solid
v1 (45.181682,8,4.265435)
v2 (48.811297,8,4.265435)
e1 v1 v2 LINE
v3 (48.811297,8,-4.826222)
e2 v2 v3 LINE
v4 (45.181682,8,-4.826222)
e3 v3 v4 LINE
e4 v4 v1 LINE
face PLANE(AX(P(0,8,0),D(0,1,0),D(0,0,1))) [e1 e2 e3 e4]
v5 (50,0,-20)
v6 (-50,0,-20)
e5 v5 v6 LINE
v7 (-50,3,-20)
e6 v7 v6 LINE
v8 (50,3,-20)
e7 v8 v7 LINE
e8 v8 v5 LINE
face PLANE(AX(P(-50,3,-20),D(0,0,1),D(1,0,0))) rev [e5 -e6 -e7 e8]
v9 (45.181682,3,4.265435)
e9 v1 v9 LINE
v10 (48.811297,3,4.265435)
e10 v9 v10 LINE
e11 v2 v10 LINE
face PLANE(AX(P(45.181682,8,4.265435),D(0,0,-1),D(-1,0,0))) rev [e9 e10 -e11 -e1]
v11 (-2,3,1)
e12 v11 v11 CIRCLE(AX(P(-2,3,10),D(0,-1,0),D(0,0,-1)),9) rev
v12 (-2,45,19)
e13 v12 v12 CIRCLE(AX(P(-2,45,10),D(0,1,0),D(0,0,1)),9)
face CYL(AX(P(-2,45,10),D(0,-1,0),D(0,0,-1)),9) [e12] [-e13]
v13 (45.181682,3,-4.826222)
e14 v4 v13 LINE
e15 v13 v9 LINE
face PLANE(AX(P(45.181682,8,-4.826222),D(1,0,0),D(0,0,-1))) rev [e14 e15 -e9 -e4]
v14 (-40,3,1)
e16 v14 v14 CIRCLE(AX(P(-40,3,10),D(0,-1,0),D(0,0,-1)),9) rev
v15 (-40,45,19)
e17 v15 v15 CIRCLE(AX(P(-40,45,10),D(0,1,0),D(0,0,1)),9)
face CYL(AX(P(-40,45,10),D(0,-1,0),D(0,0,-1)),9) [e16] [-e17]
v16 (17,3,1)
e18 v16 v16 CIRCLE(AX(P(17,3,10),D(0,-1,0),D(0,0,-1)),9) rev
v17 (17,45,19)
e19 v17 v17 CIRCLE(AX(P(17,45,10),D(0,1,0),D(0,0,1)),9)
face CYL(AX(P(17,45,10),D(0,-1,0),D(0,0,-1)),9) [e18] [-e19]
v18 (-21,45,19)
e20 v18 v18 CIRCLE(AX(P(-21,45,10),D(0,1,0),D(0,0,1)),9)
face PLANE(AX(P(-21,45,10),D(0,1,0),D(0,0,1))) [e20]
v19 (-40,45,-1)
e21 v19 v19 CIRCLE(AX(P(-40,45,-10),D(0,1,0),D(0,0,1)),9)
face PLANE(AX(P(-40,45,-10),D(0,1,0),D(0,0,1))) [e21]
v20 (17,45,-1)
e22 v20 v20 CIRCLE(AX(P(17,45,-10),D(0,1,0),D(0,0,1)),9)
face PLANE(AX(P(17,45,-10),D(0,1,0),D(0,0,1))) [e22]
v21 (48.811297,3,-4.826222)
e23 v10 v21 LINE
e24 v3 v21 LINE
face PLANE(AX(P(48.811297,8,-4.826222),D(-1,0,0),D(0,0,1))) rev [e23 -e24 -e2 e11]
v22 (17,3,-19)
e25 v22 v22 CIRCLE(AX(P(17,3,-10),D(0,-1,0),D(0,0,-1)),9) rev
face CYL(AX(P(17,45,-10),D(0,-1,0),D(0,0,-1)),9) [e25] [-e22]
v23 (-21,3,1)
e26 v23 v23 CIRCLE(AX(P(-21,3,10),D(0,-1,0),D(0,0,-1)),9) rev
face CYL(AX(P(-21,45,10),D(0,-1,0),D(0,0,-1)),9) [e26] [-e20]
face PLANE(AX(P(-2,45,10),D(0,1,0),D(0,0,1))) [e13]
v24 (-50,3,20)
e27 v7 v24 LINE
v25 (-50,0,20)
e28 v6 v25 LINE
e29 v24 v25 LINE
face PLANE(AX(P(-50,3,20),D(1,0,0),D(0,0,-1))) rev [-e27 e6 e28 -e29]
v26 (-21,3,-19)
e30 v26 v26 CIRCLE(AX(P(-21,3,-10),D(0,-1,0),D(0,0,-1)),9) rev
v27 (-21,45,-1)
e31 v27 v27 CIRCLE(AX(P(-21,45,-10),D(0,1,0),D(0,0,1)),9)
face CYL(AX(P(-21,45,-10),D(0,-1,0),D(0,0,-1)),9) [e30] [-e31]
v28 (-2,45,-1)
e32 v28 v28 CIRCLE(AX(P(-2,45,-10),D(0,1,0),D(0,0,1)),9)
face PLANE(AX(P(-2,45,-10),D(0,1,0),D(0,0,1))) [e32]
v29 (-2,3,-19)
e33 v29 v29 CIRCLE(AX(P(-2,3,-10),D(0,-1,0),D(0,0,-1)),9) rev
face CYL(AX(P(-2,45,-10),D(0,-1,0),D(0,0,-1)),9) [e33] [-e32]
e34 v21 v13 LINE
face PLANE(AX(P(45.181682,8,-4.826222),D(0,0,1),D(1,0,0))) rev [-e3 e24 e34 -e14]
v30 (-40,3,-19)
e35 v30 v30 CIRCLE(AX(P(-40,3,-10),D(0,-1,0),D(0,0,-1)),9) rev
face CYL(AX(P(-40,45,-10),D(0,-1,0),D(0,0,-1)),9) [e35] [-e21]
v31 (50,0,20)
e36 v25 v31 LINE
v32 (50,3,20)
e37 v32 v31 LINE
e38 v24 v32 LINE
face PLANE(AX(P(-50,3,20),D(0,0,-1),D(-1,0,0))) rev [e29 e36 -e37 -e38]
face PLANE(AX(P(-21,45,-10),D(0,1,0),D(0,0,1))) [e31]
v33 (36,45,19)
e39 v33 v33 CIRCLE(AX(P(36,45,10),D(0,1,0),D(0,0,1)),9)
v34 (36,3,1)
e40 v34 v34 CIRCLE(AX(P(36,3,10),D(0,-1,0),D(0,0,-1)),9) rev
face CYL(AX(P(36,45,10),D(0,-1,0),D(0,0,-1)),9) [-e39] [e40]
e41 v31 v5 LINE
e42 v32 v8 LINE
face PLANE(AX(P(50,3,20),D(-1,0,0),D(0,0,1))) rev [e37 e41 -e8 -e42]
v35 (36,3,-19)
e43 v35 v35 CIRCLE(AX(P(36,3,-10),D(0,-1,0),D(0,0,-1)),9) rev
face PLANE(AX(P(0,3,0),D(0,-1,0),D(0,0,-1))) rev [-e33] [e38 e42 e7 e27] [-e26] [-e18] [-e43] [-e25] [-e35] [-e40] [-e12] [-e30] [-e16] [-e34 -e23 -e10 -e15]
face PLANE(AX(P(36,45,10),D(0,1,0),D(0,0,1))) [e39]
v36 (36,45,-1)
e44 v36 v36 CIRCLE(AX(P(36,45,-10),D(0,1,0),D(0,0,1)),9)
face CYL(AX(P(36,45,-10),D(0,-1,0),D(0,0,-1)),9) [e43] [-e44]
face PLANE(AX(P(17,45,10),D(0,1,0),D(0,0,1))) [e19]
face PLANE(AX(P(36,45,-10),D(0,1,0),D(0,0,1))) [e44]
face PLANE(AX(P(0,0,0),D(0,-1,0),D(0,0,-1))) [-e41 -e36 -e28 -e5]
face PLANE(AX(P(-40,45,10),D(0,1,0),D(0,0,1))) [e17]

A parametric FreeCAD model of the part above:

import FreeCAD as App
import Part
import Sketcher

V = App.Vector


def add_polygon(sketch, points):
    """Adds a closed chain of lines whose ends are joined by coincident constraints."""
    first, n = sketch.GeometryCount, len(points)
    for a, b in zip(points, points[1:] + points[:1]):
        sketch.addGeometry(Part.LineSegment(App.Vector(*a, 0), App.Vector(*b, 0)), False)
    for i in range(n):
        sketch.addConstraint(Sketcher.Constraint("Coincident", first + i, 2, first + (i + 1) % n, 1))

doc = App.newDocument("Part")
body = doc.addObject("PartDesign::Body", "Body")

# Sketch on XZ plane
sketch1 = body.newObject("Sketcher::SketchObject", "Sketch")
sketch1.AttachmentSupport = (doc.getObject("XZ_Plane"), [""])
sketch1.MapMode = "FlatFace"
add_polygon(sketch1, [(-50, -20), (-50, 20), (50, 20), (50, -20)])  # lines 0-3
sketch1.addConstraint([
    Sketcher.Constraint("Vertical", 0),
    Sketcher.Constraint("Horizontal", 1),
    Sketcher.Constraint("Vertical", 2),
    Sketcher.Constraint("Horizontal", 3),
    Sketcher.Constraint("Symmetric", 0, 2, 2, 2, -1, 1),
    Sketcher.Constraint("DistanceX", 1, 1, 1, 2, 100.0),
    Sketcher.Constraint("DistanceY", 0, 1, 0, 2, 40.0),
])
pad1 = body.newObject("PartDesign::Pad", "Pad")
pad1.Profile = sketch1
pad1.Length = 3
pad1.Reversed = True

# Sketch on XZ plane
sketch2 = body.newObject("Sketcher::SketchObject", "Sketch001")
sketch2.AttachmentSupport = (doc.getObject("XZ_Plane"), [""])
sketch2.MapMode = "FlatFace"
sketch2.AttachmentOffset = App.Placement(V(0, 0, -3), App.Rotation())
sketch2.addGeometry([
    Part.Circle(V(-40, 10, 0), V(0, 0, 1), 9),  # 0
    Part.Circle(V(-21, 10, 0), V(0, 0, 1), 9),  # 1
    Part.Circle(V(-2, 10, 0), V(0, 0, 1), 9),  # 2
    Part.Circle(V(17, 10, 0), V(0, 0, 1), 9),  # 3
    Part.Circle(V(36, 10, 0), V(0, 0, 1), 9),  # 4
    Part.Circle(V(-21, -10, 0), V(0, 0, 1), 9),  # 5
    Part.Circle(V(-2, -10, 0), V(0, 0, 1), 9),  # 6
    Part.Circle(V(17, -10, 0), V(0, 0, 1), 9),  # 7
    Part.Circle(V(36, -10, 0), V(0, 0, 1), 9),  # 8
    Part.Circle(V(-40, -10, 0), V(0, 0, 1), 9),  # 9
], False)
sketch2.addConstraint([
    Sketcher.Constraint("Equal", 0, 1),
    Sketcher.Constraint("Equal", 1, 2),
    Sketcher.Constraint("Equal", 2, 3),
    Sketcher.Constraint("Equal", 3, 4),
    Sketcher.Constraint("Equal", 4, 5),
    Sketcher.Constraint("Equal", 5, 6),
    Sketcher.Constraint("Equal", 6, 7),
    Sketcher.Constraint("Equal", 7, 8),
    Sketcher.Constraint("Equal", 8, 9),
    Sketcher.Constraint("Symmetric", 1, 3, 5, 3, -1),
    Sketcher.Constraint("Symmetric", 2, 3, 6, 3, -1),
    Sketcher.Constraint("Symmetric", 3, 3, 7, 3, -1),
    Sketcher.Constraint("Symmetric", 4, 3, 8, 3, -1),
    Sketcher.Constraint("Symmetric", 0, 3, 9, 3, -1),
    Sketcher.Constraint("Horizontal", 0, 3, 1, 3),
    Sketcher.Constraint("Horizontal", 1, 3, 2, 3),
    Sketcher.Constraint("Horizontal", 2, 3, 3, 3),
    Sketcher.Constraint("Horizontal", 3, 3, 4, 3),
    Sketcher.Constraint("Diameter", 0, 18.0),
    Sketcher.Constraint("DistanceX", 0, 3, -1, 1, 40.0),
    Sketcher.Constraint("DistanceY", -1, 1, 0, 3, 10.0),
    Sketcher.Constraint("DistanceX", 1, 3, -1, 1, 21.0),
    Sketcher.Constraint("DistanceX", 2, 3, -1, 1, 2.0),
    Sketcher.Constraint("DistanceX", -1, 1, 3, 3, 17.0),
    Sketcher.Constraint("DistanceX", -1, 1, 4, 3, 36.0),
])
pad2 = body.newObject("PartDesign::Pad", "Pad001")
pad2.Profile = sketch2
pad2.Length = 42
pad2.Reversed = True

# Sketch on XZ plane
sketch3 = body.newObject("Sketcher::SketchObject", "Sketch002")
sketch3.AttachmentSupport = (doc.getObject("XZ_Plane"), [""])
sketch3.MapMode = "FlatFace"
sketch3.AttachmentOffset = App.Placement(V(0, 0, -3), App.Rotation())
add_polygon(sketch3, [(45.181682, -4.826222), (45.181682, 4.265435), (48.811297, 4.265435), (48.811297, -4.826222)])  # lines 0-3
sketch3.addConstraint([
    Sketcher.Constraint("Vertical", 0),
    Sketcher.Constraint("Horizontal", 1),
    Sketcher.Constraint("Vertical", 2),
    Sketcher.Constraint("Horizontal", 3),
    Sketcher.Constraint("DistanceX", 1, 1, 1, 2, 3.629615),
    Sketcher.Constraint("DistanceY", 0, 1, 0, 2, 9.091657),
    Sketcher.Constraint("DistanceX", -1, 1, 0, 2, 45.181682),
    Sketcher.Constraint("DistanceY", -1, 1, 0, 2, 4.265435),
])
pad3 = body.newObject("PartDesign::Pad", "Pad002")
pad3.Profile = sketch3
pad3.Length = 5
pad3.Reversed = True

doc.recompute()
